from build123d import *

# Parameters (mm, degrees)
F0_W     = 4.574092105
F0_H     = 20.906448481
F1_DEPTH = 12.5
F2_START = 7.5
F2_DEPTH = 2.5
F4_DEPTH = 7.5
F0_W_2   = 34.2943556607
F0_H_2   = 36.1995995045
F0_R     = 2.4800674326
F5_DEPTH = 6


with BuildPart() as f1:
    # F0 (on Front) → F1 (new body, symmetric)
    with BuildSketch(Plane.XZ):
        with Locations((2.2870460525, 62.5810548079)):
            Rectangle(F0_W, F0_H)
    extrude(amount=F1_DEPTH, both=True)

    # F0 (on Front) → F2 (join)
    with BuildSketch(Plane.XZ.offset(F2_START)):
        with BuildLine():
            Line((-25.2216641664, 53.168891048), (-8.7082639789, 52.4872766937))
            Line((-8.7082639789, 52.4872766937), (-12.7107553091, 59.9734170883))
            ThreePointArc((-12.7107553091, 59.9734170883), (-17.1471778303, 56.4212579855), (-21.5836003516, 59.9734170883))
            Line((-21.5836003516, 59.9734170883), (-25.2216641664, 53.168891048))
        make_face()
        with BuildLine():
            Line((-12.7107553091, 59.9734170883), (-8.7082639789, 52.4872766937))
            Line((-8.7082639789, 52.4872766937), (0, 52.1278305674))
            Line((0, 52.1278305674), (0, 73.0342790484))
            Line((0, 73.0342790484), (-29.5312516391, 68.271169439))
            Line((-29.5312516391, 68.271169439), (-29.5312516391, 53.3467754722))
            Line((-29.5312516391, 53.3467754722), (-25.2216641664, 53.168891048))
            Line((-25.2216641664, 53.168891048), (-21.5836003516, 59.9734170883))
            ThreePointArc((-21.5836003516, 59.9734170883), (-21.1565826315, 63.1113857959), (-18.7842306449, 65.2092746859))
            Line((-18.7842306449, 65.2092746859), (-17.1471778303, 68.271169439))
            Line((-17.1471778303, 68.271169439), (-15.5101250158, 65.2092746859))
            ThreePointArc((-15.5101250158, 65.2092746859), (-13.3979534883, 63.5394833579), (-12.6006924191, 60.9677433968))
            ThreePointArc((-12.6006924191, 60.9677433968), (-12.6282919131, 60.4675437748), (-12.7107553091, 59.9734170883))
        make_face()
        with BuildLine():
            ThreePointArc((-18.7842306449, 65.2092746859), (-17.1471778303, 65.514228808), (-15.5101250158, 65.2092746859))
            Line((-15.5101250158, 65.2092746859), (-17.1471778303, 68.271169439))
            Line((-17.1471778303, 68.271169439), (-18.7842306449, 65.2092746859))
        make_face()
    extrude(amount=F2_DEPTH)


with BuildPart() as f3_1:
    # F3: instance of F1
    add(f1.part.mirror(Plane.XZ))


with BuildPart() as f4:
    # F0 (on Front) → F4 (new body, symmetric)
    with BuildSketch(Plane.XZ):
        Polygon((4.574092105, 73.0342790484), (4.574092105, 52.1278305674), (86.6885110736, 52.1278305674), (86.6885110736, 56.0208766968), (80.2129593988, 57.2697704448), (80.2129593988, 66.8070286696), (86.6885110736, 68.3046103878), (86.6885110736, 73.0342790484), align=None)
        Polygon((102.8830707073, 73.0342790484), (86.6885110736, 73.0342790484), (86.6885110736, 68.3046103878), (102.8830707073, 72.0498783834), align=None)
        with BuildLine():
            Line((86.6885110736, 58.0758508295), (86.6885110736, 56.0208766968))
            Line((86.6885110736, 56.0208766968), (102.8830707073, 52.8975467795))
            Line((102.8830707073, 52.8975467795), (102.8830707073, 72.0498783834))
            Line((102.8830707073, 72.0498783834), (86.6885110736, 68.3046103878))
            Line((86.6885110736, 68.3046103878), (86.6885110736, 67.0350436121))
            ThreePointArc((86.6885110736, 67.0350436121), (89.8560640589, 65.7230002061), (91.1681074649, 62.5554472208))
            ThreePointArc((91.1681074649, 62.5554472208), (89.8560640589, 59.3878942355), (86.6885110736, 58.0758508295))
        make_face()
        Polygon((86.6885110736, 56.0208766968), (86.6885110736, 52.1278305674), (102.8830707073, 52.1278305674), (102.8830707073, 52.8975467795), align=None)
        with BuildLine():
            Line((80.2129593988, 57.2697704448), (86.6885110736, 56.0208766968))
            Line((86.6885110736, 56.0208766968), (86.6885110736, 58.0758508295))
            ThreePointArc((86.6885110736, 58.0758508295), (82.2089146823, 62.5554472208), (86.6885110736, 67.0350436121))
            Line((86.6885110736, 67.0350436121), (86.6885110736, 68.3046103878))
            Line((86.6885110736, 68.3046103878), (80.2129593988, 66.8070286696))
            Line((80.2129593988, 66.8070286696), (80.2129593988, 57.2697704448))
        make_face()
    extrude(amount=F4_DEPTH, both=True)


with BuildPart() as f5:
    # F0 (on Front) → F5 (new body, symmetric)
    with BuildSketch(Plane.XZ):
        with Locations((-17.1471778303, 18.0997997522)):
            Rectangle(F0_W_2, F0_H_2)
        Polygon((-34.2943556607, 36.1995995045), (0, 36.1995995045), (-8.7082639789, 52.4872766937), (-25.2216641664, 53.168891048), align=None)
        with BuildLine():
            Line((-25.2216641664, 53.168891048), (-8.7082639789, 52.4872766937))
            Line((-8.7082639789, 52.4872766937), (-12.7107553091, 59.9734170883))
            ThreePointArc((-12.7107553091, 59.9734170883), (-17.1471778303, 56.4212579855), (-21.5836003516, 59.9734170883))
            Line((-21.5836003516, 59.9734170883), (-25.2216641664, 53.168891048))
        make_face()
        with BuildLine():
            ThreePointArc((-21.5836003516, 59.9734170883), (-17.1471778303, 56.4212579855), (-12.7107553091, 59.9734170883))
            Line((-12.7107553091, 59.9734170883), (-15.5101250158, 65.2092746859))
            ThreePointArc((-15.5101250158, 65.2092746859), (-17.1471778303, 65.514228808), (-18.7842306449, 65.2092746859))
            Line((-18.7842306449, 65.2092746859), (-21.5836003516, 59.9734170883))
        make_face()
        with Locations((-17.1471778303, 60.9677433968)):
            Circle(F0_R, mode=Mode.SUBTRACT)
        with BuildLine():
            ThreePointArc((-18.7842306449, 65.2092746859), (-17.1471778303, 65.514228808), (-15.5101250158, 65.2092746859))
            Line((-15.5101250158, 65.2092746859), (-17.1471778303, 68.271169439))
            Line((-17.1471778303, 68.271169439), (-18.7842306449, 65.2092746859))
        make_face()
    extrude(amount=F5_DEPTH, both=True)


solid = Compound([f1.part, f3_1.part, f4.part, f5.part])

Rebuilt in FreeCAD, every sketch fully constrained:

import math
import FreeCAD as App
import Part
import Sketcher
Q = App.Units.Quantity


def add_polygon(sketch, points):
    """Adds a closed chain of lines whose ends are joined by coincident constraints."""
    first, n = sketch.GeometryCount, len(points)
    for a, b in zip(points, points[1:] + points[:1]):
        sketch.addGeometry(Part.LineSegment(App.Vector(*a, 0), App.Vector(*b, 0)), False)
    for i in range(n):
        sketch.addConstraint(Sketcher.Constraint("Coincident", first + i, 2, first + (i + 1) % n, 1))

doc = App.newDocument("Part")
body = doc.addObject("PartDesign::Body", "Body")

# Sketch on XZ plane
sketch1 = body.newObject("Sketcher::SketchObject", "Sketch")
sketch1.AttachmentSupport = (doc.getObject("XZ_Plane"), [""])
sketch1.MapMode = "FlatFace"
add_polygon(sketch1, [(0, 73), (0, 52.1), (4.6, 52.1), (4.6, 73)])  # lines 0-3
sketch1.addConstraint(Sketcher.Constraint("Vertical", 0))
sketch1.addConstraint(Sketcher.Constraint("Horizontal", 1))
sketch1.addConstraint(Sketcher.Constraint("Vertical", 2))
sketch1.addConstraint(Sketcher.Constraint("Horizontal", 3))
sketch1.addConstraint(Sketcher.Constraint("PointOnObject", 0, 2, -2))
sketch1.addConstraint(Sketcher.Constraint("DistanceY", 0, 2, 0, 1, Q("20.906448 mm")))
sketch1.addConstraint(Sketcher.Constraint("DistanceX", 1, 1, 1, 2, Q("4.574092 mm")))
sketch1.addConstraint(Sketcher.Constraint("DistanceY", -1, 1, 0, 2, Q("52.127831 mm")))
pad1 = body.newObject("PartDesign::Pad", "Pad")
pad1.Profile = sketch1
pad1.Length = 25
pad1.Midplane = True

# Sketch on XZ plane
sketch2 = body.newObject("Sketcher::SketchObject", "Sketch001")
sketch2.AttachmentSupport = (doc.getObject("XZ_Plane"), [""])
sketch2.MapMode = "FlatFace"
sketch2.AttachmentOffset = App.Placement(App.Vector(0, 0, 7.5), App.Rotation())
add_polygon(sketch2, [(-25.2, 53.2), (-8.7, 52.5), (0, 52.1), (0, 73), (-29.5, 68.3), (-29.5, 53.3)])  # lines 0-5
sketch2.addGeometry(Part.ArcOfCircle(Part.Circle(App.Vector(-17.1, 61, 0), App.Vector(0, 0, 1), 4.5), math.radians(-167), math.radians(-13)), False)  # 6
sketch2.addGeometry(Part.ArcOfCircle(Part.Circle(App.Vector(-17.1, 61, 0), App.Vector(0, 0, 1), 4.5), math.radians(111), math.radians(193)), False)  # 7
sketch2.addGeometry(Part.ArcOfCircle(Part.Circle(App.Vector(-17.1, 61, 0), App.Vector(0, 0, 1), 4.5), math.radians(69), math.radians(111)), False)  # 8
sketch2.addGeometry(Part.ArcOfCircle(Part.Circle(App.Vector(-17.1, 61, 0), App.Vector(0, 0, 1), 4.5), math.radians(0), math.radians(69)), False)  # 9
sketch2.addGeometry(Part.ArcOfCircle(Part.Circle(App.Vector(-17.1, 61, 0), App.Vector(0, 0, 1), 4.5), math.radians(-12.63), math.radians(0)), False)  # 10
sketch2.addConstraint(Sketcher.Constraint("Tangent", 6, 1, 7, 2))
sketch2.addConstraint(Sketcher.Constraint("Tangent", 7, 1, 8, 2))
sketch2.addConstraint(Sketcher.Constraint("Tangent", 8, 1, 9, 2))
sketch2.addConstraint(Sketcher.Constraint("Tangent", 9, 1, 10, 2))
sketch2.addConstraint(Sketcher.Constraint("Tangent", 10, 1, 6, 2))
sketch2.addConstraint(Sketcher.Constraint("Vertical", 2))
sketch2.addConstraint(Sketcher.Constraint("Vertical", 4))
sketch2.addConstraint(Sketcher.Constraint("Coincident", 8, 3, 6, 3))
sketch2.addConstraint(Sketcher.Constraint("PointOnObject", 1, 2, -2))
sketch2.addConstraint(Sketcher.Constraint("Parallel", 0, 1))
sketch2.addConstraint(Sketcher.Constraint("Parallel", 1, 5))
sketch2.addConstraint(Sketcher.Constraint("Horizontal", 7, 1, 8, 1))
sketch2.addConstraint(Sketcher.Constraint("Horizontal", 10, 3, 9, 1))
sketch2.addConstraint(Sketcher.Constraint("Horizontal", 6, 1, 10, 1))
sketch2.addConstraint(Sketcher.Constraint("Radius", 6, Q("4.546485 mm")))
sketch2.addConstraint(Sketcher.Constraint("DistanceY", 2, 1, 2, 2, Q("20.906448 mm")))
sketch2.addConstraint(Sketcher.Constraint("DistanceX", 6, 1, -1, 1, Q("21.5836 mm")))
sketch2.addConstraint(Sketcher.Constraint("Distance", 0, Q("16.527462 mm")))
sketch2.addConstraint(Sketcher.Constraint("Distance", 1, Q("8.715679 mm")))
sketch2.addConstraint(Sketcher.Constraint("DistanceY", 4, 2, 4, 1, Q("14.924394 mm")))
sketch2.addConstraint(Sketcher.Constraint("DistanceY", -1, 1, 1, 2, Q("52.127831 mm")))
sketch2.addConstraint(Sketcher.Constraint("DistanceX", 3, 2, -1, 1, Q("29.531252 mm")))
sketch2.addConstraint(Sketcher.Constraint("DistanceY", -1, 1, 3, 2, Q("68.271169 mm")))
sketch2.addConstraint(Sketcher.Constraint("DistanceX", 7, 1, -1, 1, Q("18.784231 mm")))
sketch2.addConstraint(Sketcher.Constraint("DistanceY", 6, 3, 7, 1, Q("4.241531 mm")))
sketch2.addConstraint(Sketcher.Constraint("DistanceY", -1, 1, 6, 3, Q("60.967743 mm")))
pad2 = body.newObject("PartDesign::Pad", "Pad001")
pad2.Profile = sketch2
pad2.Length = 2.5
body2 = doc.addObject("PartDesign::Body", "Body001")
doc.recompute()

mirroring = doc.addObject("Part::Mirroring", "Mirroring")
mirroring.Source = body
mirroring.Base = App.Vector(0, 0, 0)
mirroring.Normal = App.Vector(0, -1, 0)
body2.BaseFeature = mirroring
doc.recompute()
body3 = doc.addObject("PartDesign::Body", "Body002")

# Sketch on XZ plane
sketch3 = body3.newObject("Sketcher::SketchObject", "Sketch002")
sketch3.AttachmentSupport = (doc.getObject("XZ_Plane002"), [""])
sketch3.MapMode = "FlatFace"
add_polygon(sketch3, [(4.6, 73), (4.6, 52.1), (102.9, 52.1), (102.9, 73)])  # lines 0-3
sketch3.addGeometry(Part.ArcOfCircle(Part.Circle(App.Vector(86.7, 62.6, 0), App.Vector(0, 0, 1), 4.5), math.radians(0), math.radians(90)), False)  # 4
sketch3.addGeometry(Part.ArcOfCircle(Part.Circle(App.Vector(86.7, 62.6, 0), App.Vector(0, 0, 1), 4.5), math.radians(-90), math.radians(0)), False)  # 5
sketch3.addGeometry(Part.ArcOfCircle(Part.Circle(App.Vector(86.7, 62.6, 0), App.Vector(0, 0, 1), 4.5), math.radians(90), math.radians(270)), False)  # 6
sketch3.addConstraint(Sketcher.Constraint("Tangent", 4, 1, 5, 2))
sketch3.addConstraint(Sketcher.Constraint("Tangent", 5, 1, 6, 2))
sketch3.addConstraint(Sketcher.Constraint("Tangent", 6, 1, 4, 2))
sketch3.addConstraint(Sketcher.Constraint("Vertical", 0))
sketch3.addConstraint(Sketcher.Constraint("Horizontal", 1))
sketch3.addConstraint(Sketcher.Constraint("Vertical", 2))
sketch3.addConstraint(Sketcher.Constraint("Horizontal", 3))
sketch3.addConstraint(Sketcher.Constraint("Horizontal", 6, 3, 4, 1))
sketch3.addConstraint(Sketcher.Constraint("Vertical", 6, 3, 5, 1))
sketch3.addConstraint(Sketcher.Constraint("Vertical", 5, 1, 6, 1))
sketch3.addConstraint(Sketcher.Constraint("Radius", 4, Q("4.479596 mm")))
sketch3.addConstraint(Sketcher.Constraint("DistanceX", 1, 1, 1, 2, Q("98.308979 mm")))
sketch3.addConstraint(Sketcher.Constraint("DistanceY", 0, 2, 0, 1, Q("20.906448 mm")))
sketch3.addConstraint(Sketcher.Constraint("DistanceX", -1, 1, 4, 3, Q("86.688511 mm")))
sketch3.addConstraint(Sketcher.Constraint("DistanceY", -1, 1, 0, 2, Q("52.127831 mm")))
sketch3.addConstraint(Sketcher.Constraint("DistanceX", -1, 1, 1, 2, Q("102.883071 mm")))
sketch3.addConstraint(Sketcher.Constraint("DistanceY", -1, 1, 5, 1, Q("58.075851 mm")))
pad3 = body3.newObject("PartDesign::Pad", "Pad002")
pad3.Profile = sketch3
pad3.Length = 15
pad3.Midplane = True
body4 = doc.addObject("PartDesign::Body", "Body003")

# Sketch on XZ plane
sketch4 = body4.newObject("Sketcher::SketchObject", "Sketch003")
sketch4.AttachmentSupport = (doc.getObject("XZ_Plane003"), [""])
sketch4.MapMode = "FlatFace"
add_polygon(sketch4, [(-34.3, 36.2), (-34.3, 0), (0, 0), (0, 36.2), (-8.7, 52.5), (-12.7, 60), (-15.5, 65.2), (-17.1, 68.3), (-18.8, 65.2), (-21.6, 60), (-25.2, 53.2)])  # lines 0-10
sketch4.addGeometry(Part.Circle(App.Vector(-17.1, 61, 0), App.Vector(0, 0, 1), 2.5), False)  # 11
sketch4.addConstraint(Sketcher.Constraint("Vertical", 0))
sketch4.addConstraint(Sketcher.Constraint("Horizontal", 1))
sketch4.addConstraint(Sketcher.Constraint("Vertical", 2))
sketch4.addConstraint(Sketcher.Constraint("Coincident", 1, 2, -1, 1))
sketch4.addConstraint(Sketcher.Constraint("Parallel", 3, 4))
sketch4.addConstraint(Sketcher.Constraint("Parallel", 4, 5))
sketch4.addConstraint(Sketcher.Constraint("Parallel", 5, 6))
sketch4.addConstraint(Sketcher.Constraint("Parallel", 7, 8))
sketch4.addConstraint(Sketcher.Constraint("Parallel", 8, 9))
sketch4.addConstraint(Sketcher.Constraint("Parallel", 9, 10))
sketch4.addConstraint(Sketcher.Constraint("Horizontal", 5, 2, 7, 2))
sketch4.addConstraint(Sketcher.Constraint("Horizontal", 4, 2, 8, 2))
sketch4.addConstraint(Sketcher.Constraint("Horizontal", 2, 2, 10, 2))
sketch4.addConstraint(Sketcher.Constraint("Vertical", 11, 3, 6, 2))
sketch4.addConstraint(Sketcher.Constraint("Equal", 6, 7))
sketch4.addConstraint(Sketcher.Constraint("Diameter", 11, Q("4.960135 mm")))
sketch4.addConstraint(Sketcher.Constraint("DistanceY", 0, 2, 0, 1, Q("36.1996 mm")))
sketch4.addConstraint(Sketcher.Constraint("DistanceX", 8, 2, -1, 1, Q("21.5836 mm")))
sketch4.addConstraint(Sketcher.Constraint("Distance", 6, Q("3.472051 mm")))
sketch4.addConstraint(Sketcher.Constraint("DistanceX", 1, 1, 1, 2, Q("34.294356 mm")))
sketch4.addConstraint(Sketcher.Constraint("DistanceY", -1, 1, 6, 2, Q("68.271169 mm")))
sketch4.addConstraint(Sketcher.Constraint("DistanceY", -1, 1, 9, 2, Q("53.168891 mm")))
sketch4.addConstraint(Sketcher.Constraint("DistanceX", 0, 2, 3, 2, Q("25.586092 mm")))
sketch4.addConstraint(Sketcher.Constraint("DistanceY", 11, 3, 5, 2, Q("4.241531 mm")))
pad4 = body4.newObject("PartDesign::Pad", "Pad003")
pad4.Profile = sketch4
pad4.Length = 12
pad4.Midplane = True
mirroring.Visibility = False

doc.recompute()
